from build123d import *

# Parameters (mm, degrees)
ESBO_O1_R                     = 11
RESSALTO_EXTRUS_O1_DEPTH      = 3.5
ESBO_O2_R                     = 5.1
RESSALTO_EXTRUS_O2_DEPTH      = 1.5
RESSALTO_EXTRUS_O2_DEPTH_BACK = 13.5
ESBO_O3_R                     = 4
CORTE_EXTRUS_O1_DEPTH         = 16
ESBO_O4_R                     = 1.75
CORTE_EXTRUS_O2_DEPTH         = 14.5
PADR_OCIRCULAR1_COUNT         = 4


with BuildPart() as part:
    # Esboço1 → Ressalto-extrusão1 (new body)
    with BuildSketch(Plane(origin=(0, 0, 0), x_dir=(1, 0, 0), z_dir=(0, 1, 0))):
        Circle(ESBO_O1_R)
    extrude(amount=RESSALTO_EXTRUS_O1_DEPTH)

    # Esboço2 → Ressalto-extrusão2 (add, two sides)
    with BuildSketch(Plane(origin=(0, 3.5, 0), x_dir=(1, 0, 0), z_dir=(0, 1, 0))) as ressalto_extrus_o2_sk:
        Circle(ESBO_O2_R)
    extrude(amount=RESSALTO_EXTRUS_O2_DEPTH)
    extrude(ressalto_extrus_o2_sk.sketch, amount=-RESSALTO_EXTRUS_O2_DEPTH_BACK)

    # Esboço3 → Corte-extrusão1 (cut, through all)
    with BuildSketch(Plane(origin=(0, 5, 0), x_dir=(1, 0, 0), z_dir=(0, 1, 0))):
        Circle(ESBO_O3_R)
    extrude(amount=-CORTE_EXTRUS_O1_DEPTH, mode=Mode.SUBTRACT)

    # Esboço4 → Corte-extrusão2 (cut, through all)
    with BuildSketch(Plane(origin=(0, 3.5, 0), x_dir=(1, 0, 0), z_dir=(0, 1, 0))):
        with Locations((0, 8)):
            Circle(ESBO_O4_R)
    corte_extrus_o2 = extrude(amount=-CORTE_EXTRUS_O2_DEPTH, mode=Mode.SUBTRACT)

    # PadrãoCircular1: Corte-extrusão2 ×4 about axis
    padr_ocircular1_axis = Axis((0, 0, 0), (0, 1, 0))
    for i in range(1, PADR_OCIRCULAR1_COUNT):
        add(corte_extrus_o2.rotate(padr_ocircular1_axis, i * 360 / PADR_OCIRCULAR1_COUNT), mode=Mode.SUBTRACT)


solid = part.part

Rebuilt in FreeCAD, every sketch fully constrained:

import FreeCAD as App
import Part
import Sketcher

V = App.Vector

doc = App.newDocument("Part")
body = doc.addObject("PartDesign::Body", "Body")

# Sketch on XZ plane
sketch1 = body.newObject("Sketcher::SketchObject", "Sketch")
sketch1.AttachmentSupport = (doc.getObject("XZ_Plane"), [""])
sketch1.MapMode = "FlatFace"
sketch1.addGeometry(Part.Circle(V(0, 0, 0), V(0, 0, 1), 11), False)
sketch1.addConstraint(Sketcher.Constraint("Coincident", 0, 3, -1, 1))
sketch1.addConstraint(Sketcher.Constraint("Diameter", 0, 22.0))
pad1 = body.newObject("PartDesign::Pad", "Pad")
pad1.Profile = sketch1
pad1.Length = 3.5
pad1.Reversed = True

# Sketch on XZ plane
sketch2 = body.newObject("Sketcher::SketchObject", "Sketch001")
sketch2.AttachmentSupport = (doc.getObject("XZ_Plane"), [""])
sketch2.MapMode = "FlatFace"
sketch2.AttachmentOffset = App.Placement(V(0, 0, -3.5), App.Rotation())
sketch2.addGeometry(Part.Circle(V(0, 0, 0), V(0, 0, 1), 5.1), False)
sketch2.addConstraint(Sketcher.Constraint("Coincident", 0, 3, -1, 1))
sketch2.addConstraint(Sketcher.Constraint("Diameter", 0, 10.2))
pad2 = body.newObject("PartDesign::Pad", "Pad001")
pad2.Profile = sketch2
pad2.Type = "TwoLengths"
pad2.Length = 1.5
pad2.Length2 = 13.5
pad2.Reversed = True

# Sketch on XZ plane
sketch3 = body.newObject("Sketcher::SketchObject", "Sketch002")
sketch3.AttachmentSupport = (doc.getObject("XZ_Plane"), [""])
sketch3.MapMode = "FlatFace"
sketch3.AttachmentOffset = App.Placement(V(0, 0, -5), App.Rotation())
sketch3.addGeometry(Part.Circle(V(0, 0, 0), V(0, 0, 1), 4), False)
sketch3.addConstraint(Sketcher.Constraint("Coincident", 0, 3, -1, 1))
sketch3.addConstraint(Sketcher.Constraint("Diameter", 0, 8.0))
pocket1 = body.newObject("PartDesign::Pocket", "Pocket")
pocket1.Profile = sketch3
pocket1.Type = "ThroughAll"
pocket1.Reversed = True

# Sketch on XZ plane
sketch4 = body.newObject("Sketcher::SketchObject", "Sketch003")
sketch4.AttachmentSupport = (doc.getObject("XZ_Plane"), [""])
sketch4.MapMode = "FlatFace"
sketch4.AttachmentOffset = App.Placement(V(0, 0, -3.5), App.Rotation())
sketch4.addGeometry(Part.Circle(V(0, -8, 0), V(0, 0, 1), 1.75), False)
sketch4.addConstraint(Sketcher.Constraint("PointOnObject", 0, 3, -2))
sketch4.addConstraint(Sketcher.Constraint("Diameter", 0, 3.5))
sketch4.addConstraint(Sketcher.Constraint("DistanceY", 0, 3, -1, 1, 8.0))
pocket2 = body.newObject("PartDesign::Pocket", "Pocket001")
pocket2.Profile = sketch4
pocket2.Type = "ThroughAll"
pocket2.Reversed = True
doc.recompute()

polarpattern = body.newObject("PartDesign::PolarPattern", "PolarPattern")
polarpattern.Originals = [pocket2]
polarpattern.Axis = (doc.getObject("Y_Axis"), [""])
polarpattern.Angle = 360
polarpattern.Occurrences = 4
body.Tip = polarpattern

doc.recompute()
